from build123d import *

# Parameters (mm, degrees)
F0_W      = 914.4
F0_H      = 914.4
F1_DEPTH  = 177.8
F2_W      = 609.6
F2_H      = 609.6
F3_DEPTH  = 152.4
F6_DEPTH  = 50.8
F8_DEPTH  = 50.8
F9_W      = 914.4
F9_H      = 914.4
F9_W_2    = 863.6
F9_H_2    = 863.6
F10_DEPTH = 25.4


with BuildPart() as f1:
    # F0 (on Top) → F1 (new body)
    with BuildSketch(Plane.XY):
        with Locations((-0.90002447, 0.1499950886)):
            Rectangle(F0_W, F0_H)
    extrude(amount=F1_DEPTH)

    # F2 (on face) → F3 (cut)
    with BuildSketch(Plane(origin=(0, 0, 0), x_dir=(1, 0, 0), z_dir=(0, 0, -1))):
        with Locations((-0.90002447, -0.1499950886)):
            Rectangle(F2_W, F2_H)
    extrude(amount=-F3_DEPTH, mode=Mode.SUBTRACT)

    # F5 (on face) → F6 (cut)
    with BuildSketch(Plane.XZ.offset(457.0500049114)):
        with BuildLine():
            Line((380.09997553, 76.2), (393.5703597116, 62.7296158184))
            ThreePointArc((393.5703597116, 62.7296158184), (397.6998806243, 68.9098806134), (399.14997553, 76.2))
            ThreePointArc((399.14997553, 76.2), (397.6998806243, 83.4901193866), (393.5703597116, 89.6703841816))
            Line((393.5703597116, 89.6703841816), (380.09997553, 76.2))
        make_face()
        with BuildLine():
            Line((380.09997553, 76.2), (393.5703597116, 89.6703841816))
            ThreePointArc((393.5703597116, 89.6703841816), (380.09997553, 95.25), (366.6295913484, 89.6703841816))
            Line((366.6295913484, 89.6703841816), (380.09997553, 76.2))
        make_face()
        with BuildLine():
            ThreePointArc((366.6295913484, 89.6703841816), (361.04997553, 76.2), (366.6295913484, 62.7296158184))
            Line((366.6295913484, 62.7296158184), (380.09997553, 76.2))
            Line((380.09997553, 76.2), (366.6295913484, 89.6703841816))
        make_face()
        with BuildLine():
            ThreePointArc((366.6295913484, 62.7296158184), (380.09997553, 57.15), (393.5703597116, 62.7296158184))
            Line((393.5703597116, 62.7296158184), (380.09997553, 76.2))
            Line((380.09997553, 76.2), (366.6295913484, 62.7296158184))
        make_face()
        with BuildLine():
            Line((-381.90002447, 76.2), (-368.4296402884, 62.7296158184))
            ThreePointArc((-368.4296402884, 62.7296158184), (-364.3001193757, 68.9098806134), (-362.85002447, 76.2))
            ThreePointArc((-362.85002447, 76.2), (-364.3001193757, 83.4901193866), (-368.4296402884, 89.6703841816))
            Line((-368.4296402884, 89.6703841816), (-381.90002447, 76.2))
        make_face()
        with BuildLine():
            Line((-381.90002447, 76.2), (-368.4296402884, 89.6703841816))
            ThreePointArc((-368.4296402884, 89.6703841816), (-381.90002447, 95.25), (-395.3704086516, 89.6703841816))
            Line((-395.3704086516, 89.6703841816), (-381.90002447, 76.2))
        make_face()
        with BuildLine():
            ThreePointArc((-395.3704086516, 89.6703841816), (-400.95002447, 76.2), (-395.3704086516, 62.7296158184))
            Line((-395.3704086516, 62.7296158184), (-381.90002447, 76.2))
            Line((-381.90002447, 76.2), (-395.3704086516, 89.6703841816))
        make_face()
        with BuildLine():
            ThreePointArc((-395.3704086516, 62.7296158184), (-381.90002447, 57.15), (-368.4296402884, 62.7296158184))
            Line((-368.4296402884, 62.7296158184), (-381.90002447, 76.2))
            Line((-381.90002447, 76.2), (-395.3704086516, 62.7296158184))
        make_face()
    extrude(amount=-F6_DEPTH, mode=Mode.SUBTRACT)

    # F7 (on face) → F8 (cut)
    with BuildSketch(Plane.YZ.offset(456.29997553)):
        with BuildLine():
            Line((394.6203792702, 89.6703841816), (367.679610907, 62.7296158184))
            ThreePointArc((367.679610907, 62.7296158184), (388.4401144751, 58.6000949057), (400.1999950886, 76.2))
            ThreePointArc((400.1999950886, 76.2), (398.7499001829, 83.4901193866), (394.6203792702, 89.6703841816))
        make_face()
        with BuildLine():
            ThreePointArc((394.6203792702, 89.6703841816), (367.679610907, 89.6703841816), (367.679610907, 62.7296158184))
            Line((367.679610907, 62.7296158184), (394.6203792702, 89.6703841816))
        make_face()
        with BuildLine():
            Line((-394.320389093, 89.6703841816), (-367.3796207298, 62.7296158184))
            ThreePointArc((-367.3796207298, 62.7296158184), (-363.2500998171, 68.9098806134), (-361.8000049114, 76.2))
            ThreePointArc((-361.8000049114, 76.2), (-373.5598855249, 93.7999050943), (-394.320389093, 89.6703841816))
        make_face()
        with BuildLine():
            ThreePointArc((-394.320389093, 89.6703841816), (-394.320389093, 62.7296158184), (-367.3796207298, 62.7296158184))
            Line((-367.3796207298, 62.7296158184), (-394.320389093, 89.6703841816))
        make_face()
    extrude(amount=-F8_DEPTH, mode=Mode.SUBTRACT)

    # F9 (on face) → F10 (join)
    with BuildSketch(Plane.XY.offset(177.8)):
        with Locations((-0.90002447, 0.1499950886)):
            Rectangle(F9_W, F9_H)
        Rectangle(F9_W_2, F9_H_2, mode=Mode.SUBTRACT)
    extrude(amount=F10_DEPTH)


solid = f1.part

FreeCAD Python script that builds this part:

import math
import FreeCAD as App
import Part
import Sketcher
from FreeCAD import Vector
Q = App.Units.Quantity


def add_polygon(sketch, points):
    """Adds a closed chain of lines whose ends are joined by coincident constraints."""
    first, n = sketch.GeometryCount, len(points)
    for a, b in zip(points, points[1:] + points[:1]):
        sketch.addGeometry(Part.LineSegment(App.Vector(*a, 0), App.Vector(*b, 0)), False)
    for i in range(n):
        sketch.addConstraint(Sketcher.Constraint("Coincident", first + i, 2, first + (i + 1) % n, 1))

doc = App.newDocument("Part")
params = doc.addObject("Spreadsheet::Sheet", "Params")
for row, (alias, value) in enumerate([
    ("sketch1_width", "36 in"),
    ("pad1_length", "7 in"),
    ("sketch2_width", "24 in"),
    ("pocket1_length", "6 in"),
    ("sketch3_radius", "0.75 in"),
    ("pocket2_length", "2 in"),
    ("sketch4_radius", "0.75 in"),
    ("pocket3_length", "2 in"),
    ("sketch5_width", "36 in"),
    ("sketch5_width2", "34 in"),
    ("pad2_length", "1 in"),
], start=1):
    params.set(f"A{row}", alias)
    params.set(f"B{row}", "=" + value)
    params.setAlias(f"B{row}", alias)

body = doc.addObject("PartDesign::Body", "Body")

# Sketch on XY plane
sketch1 = doc.addObject("Sketcher::SketchObject", "Sketch")
body.addObject(sketch1)
sketch1.AttachmentSupport = (doc.XY_Plane, [""])
sketch1.MapMode = "FlatFace"
add_polygon(sketch1, [(-458.100024, 457.349995), (-458.100024, -457.050005), (456.299976, -457.050005), (456.299976, 457.349995)])  # lines 0-3
sketch1.addConstraint([
    Sketcher.Constraint("Vertical", 0),
    Sketcher.Constraint("Horizontal", 1),
    Sketcher.Constraint("Vertical", 2),
    Sketcher.Constraint("Horizontal", 3),
    Sketcher.Constraint("Equal", 3, 0),
    Sketcher.Constraint("DistanceX", 1, 1, 1, 2, Q("36 in")),
    Sketcher.Constraint("DistanceX", 0, 2, -1, 1, Q("458.100024 mm")),
    Sketcher.Constraint("DistanceY", 0, 2, -1, 1, Q("457.050005 mm")),
])
sketch1.setExpression("Constraints[9]", "Params.sketch1_width")
pad1 = doc.addObject("PartDesign::Pad", "Pad")
body.addObject(pad1)
pad1.Profile = sketch1
pad1.setExpression("Length", "Params.pad1_length")

# Sketch on XY plane
sketch2 = doc.addObject("Sketcher::SketchObject", "Sketch001")
body.addObject(sketch2)
sketch2.AttachmentSupport = (doc.XY_Plane, [""])
sketch2.MapMode = "FlatFace"
add_polygon(sketch2, [(-305.700024, -304.650005), (-305.700024, 304.949995), (303.899976, 304.949995), (303.899976, -304.650005)])  # lines 0-3
sketch2.addConstraint([
    Sketcher.Constraint("Vertical", 0),
    Sketcher.Constraint("Horizontal", 1),
    Sketcher.Constraint("Vertical", 2),
    Sketcher.Constraint("Horizontal", 3),
    Sketcher.Constraint("Equal", 3, 0),
    Sketcher.Constraint("DistanceX", 1, 1, 1, 2, Q("24 in")),
    Sketcher.Constraint("DistanceX", 0, 2, -1, 1, Q("305.700024 mm")),
    Sketcher.Constraint("DistanceY", -1, 1, 0, 2, Q("304.949995 mm")),
])
sketch2.setExpression("Constraints[9]", "Params.sketch2_width")
pocket1 = doc.addObject("PartDesign::Pocket", "Pocket")
body.addObject(pocket1)
pocket1.Profile = sketch2
pocket1.setExpression("Length", "Params.pocket1_length")
pocket1.Reversed = True

# Sketch on XZ plane
sketch3 = doc.addObject("Sketcher::SketchObject", "Sketch002")
body.addObject(sketch3)
sketch3.AttachmentSupport = (doc.XZ_Plane, [""])
sketch3.MapMode = "FlatFace"
sketch3.AttachmentOffset = App.Placement(Vector(0, 0, 457.050005), App.Rotation())
sketch3.addGeometry([
    Part.ArcOfCircle(Part.Circle(Vector(380.099976, 76.2, 0), Vector(0, 0, 1), 19.05), math.radians(-45), math.radians(0)),  # 0
    Part.ArcOfCircle(Part.Circle(Vector(380.099976, 76.2, 0), Vector(0, 0, 1), 19.05), math.radians(0), math.radians(45)),  # 1
    Part.ArcOfCircle(Part.Circle(Vector(380.099976, 76.2, 0), Vector(0, 0, 1), 19.05), math.radians(45), math.radians(135)),  # 2
    Part.ArcOfCircle(Part.Circle(Vector(380.099976, 76.2, 0), Vector(0, 0, 1), 19.05), math.radians(135), math.radians(225)),  # 3
    Part.ArcOfCircle(Part.Circle(Vector(380.099976, 76.2, 0), Vector(0, 0, 1), 19.05), math.radians(-135), math.radians(-45)),  # 4
    Part.ArcOfCircle(Part.Circle(Vector(-381.900024, 76.2, 0), Vector(0, 0, 1), 19.05), math.radians(-45), math.radians(0)),  # 5
    Part.ArcOfCircle(Part.Circle(Vector(-381.900024, 76.2, 0), Vector(0, 0, 1), 19.05), math.radians(0), math.radians(45)),  # 6
    Part.ArcOfCircle(Part.Circle(Vector(-381.900024, 76.2, 0), Vector(0, 0, 1), 19.05), math.radians(45), math.radians(135)),  # 7
    Part.ArcOfCircle(Part.Circle(Vector(-381.900024, 76.2, 0), Vector(0, 0, 1), 19.05), math.radians(135), math.radians(225)),  # 8
    Part.ArcOfCircle(Part.Circle(Vector(-381.900024, 76.2, 0), Vector(0, 0, 1), 19.05), math.radians(-135), math.radians(-45)),  # 9
], False)
sketch3.addConstraint([
    Sketcher.Constraint("Tangent", 0, 2, 1, 1),
    Sketcher.Constraint("Tangent", 1, 2, 2, 1),
    Sketcher.Constraint("Tangent", 2, 2, 3, 1),
    Sketcher.Constraint("Tangent", 3, 2, 4, 1),
    Sketcher.Constraint("Tangent", 4, 2, 0, 1),
    Sketcher.Constraint("Tangent", 5, 2, 6, 1),
    Sketcher.Constraint("Tangent", 6, 2, 7, 1),
    Sketcher.Constraint("Tangent", 7, 2, 8, 1),
    Sketcher.Constraint("Tangent", 8, 2, 9, 1),
    Sketcher.Constraint("Tangent", 9, 2, 5, 1),
    Sketcher.Constraint("Coincident", 2, 3, 0, 3),
    Sketcher.Constraint("Coincident", 7, 3, 5, 3),
    Sketcher.Constraint("Equal", 4, 5),
    Sketcher.Constraint("Horizontal", 4, 3, 5, 3),
    Sketcher.Constraint("Horizontal", 9, 3, 0, 2),
    Sketcher.Constraint("Horizontal", 1, 2, 2, 2),
    Sketcher.Constraint("Horizontal", 3, 2, 4, 2),
    Sketcher.Constraint("Horizontal", 0, 2, 5, 2),
    Sketcher.Constraint("Horizontal", 2, 2, 6, 2),
    Sketcher.Constraint("Horizontal", 6, 2, 7, 2),
    Sketcher.Constraint("Horizontal", 4, 2, 8, 2),
    Sketcher.Constraint("Horizontal", 8, 2, 9, 2),
    Sketcher.Constraint("Vertical", 2, 2, 3, 2),
    Sketcher.Constraint("Radius", 0, Q("0.75 in")),
    Sketcher.Constraint("DistanceY", -1, 1, 0, 3, Q("3 in")),
    Sketcher.Constraint("DistanceX", 5, 3, 0, 3, Q("30 in")),
    Sketcher.Constraint("DistanceX", -1, 1, 1, 2, Q("393.57036 mm")),
    Sketcher.Constraint("DistanceX", -1, 1, 2, 2, Q("366.629591 mm")),
])
sketch3.setExpression("Constraints[23]", "Params.sketch3_radius")
pocket2 = doc.addObject("PartDesign::Pocket", "Pocket001")
body.addObject(pocket2)
pocket2.Profile = sketch3
pocket2.setExpression("Length", "Params.pocket2_length")

# Sketch on YZ plane
sketch4 = doc.addObject("Sketcher::SketchObject", "Sketch003")
body.addObject(sketch4)
sketch4.AttachmentSupport = (doc.YZ_Plane, [""])
sketch4.MapMode = "FlatFace"
sketch4.AttachmentOffset = App.Placement(Vector(0, 0, 456.299976), App.Rotation())
sketch4.addGeometry([
    Part.ArcOfCircle(Part.Circle(Vector(381.149995, 76.2, 0), Vector(0, 0, 1), 19.05), math.radians(-135), math.radians(0)),  # 0
    Part.ArcOfCircle(Part.Circle(Vector(381.149995, 76.2, 0), Vector(0, 0, 1), 19.05), math.radians(0), math.radians(45)),  # 1
    Part.ArcOfCircle(Part.Circle(Vector(381.149995, 76.2, 0), Vector(0, 0, 1), 19.05), math.radians(45), math.radians(225)),  # 2
    Part.ArcOfCircle(Part.Circle(Vector(-380.850005, 76.2, 0), Vector(0, 0, 1), 19.05), math.radians(-45), math.radians(0)),  # 3
    Part.ArcOfCircle(Part.Circle(Vector(-380.850005, 76.2, 0), Vector(0, 0, 1), 19.05), math.radians(0), math.radians(135)),  # 4
    Part.ArcOfCircle(Part.Circle(Vector(-380.850005, 76.2, 0), Vector(0, 0, 1), 19.05), math.radians(135), math.radians(315)),  # 5
], False)
sketch4.addConstraint([
    Sketcher.Constraint("Tangent", 0, 2, 1, 1),
    Sketcher.Constraint("Tangent", 1, 2, 2, 1),
    Sketcher.Constraint("Tangent", 2, 2, 0, 1),
    Sketcher.Constraint("Tangent", 3, 2, 4, 1),
    Sketcher.Constraint("Tangent", 4, 2, 5, 1),
    Sketcher.Constraint("Tangent", 5, 2, 3, 1),
    Sketcher.Constraint("Equal", 2, 3),
    Sketcher.Constraint("Horizontal", 2, 3, 3, 3),
    Sketcher.Constraint("Horizontal", 5, 3, 0, 2),
    Sketcher.Constraint("Horizontal", 0, 2, 3, 2),
    Sketcher.Constraint("Horizontal", 1, 2, 4, 2),
    Sketcher.Constraint("Horizontal", 2, 2, 5, 2),
    Sketcher.Constraint("Radius", 0, Q("0.75 in")),
    Sketcher.Constraint("DistanceY", -1, 1, 0, 3, Q("3 in")),
    Sketcher.Constraint("DistanceX", 3, 3, 1, 3, Q("30 in")),
    Sketcher.Constraint("DistanceX", 4, 2, 2, 2, Q("30 in")),
    Sketcher.Constraint("DistanceX", -1, 1, 1, 2, Q("394.620379 mm")),
    Sketcher.Constraint("DistanceX", -1, 1, 2, 2, Q("367.679611 mm")),
])
sketch4.setExpression("Constraints[12]", "Params.sketch4_radius")
pocket3 = doc.addObject("PartDesign::Pocket", "Pocket002")
body.addObject(pocket3)
pocket3.Profile = sketch4
pocket3.setExpression("Length", "Params.pocket3_length")

# Sketch on XY plane
sketch5 = doc.addObject("Sketcher::SketchObject", "Sketch004")
body.addObject(sketch5)
sketch5.AttachmentSupport = (doc.XY_Plane, [""])
sketch5.MapMode = "FlatFace"
sketch5.AttachmentOffset = App.Placement(Vector(0, 0, 7 * 25.4), App.Rotation())
add_polygon(sketch5, [(-458.100024, 457.349995), (-458.100024, -457.050005), (456.299976, -457.050005), (456.299976, 457.349995)])  # lines 0-3
add_polygon(sketch5, [(431.8, -431.8), (-431.8, -431.8), (-431.8, 431.8), (431.8, 431.8)])  # lines 4-7
sketch5.addConstraint([
    Sketcher.Constraint("Vertical", 0),
    Sketcher.Constraint("Horizontal", 1),
    Sketcher.Constraint("Vertical", 2),
    Sketcher.Constraint("Horizontal", 3),
    Sketcher.Constraint("Horizontal", 4),
    Sketcher.Constraint("Vertical", 5),
    Sketcher.Constraint("Horizontal", 6),
    Sketcher.Constraint("Vertical", 7),
    Sketcher.Constraint("Symmetric", 4, 2, 6, 2, -1, 1),
    Sketcher.Constraint("Equal", 3, 0),
    Sketcher.Constraint("Equal", 6, 5),
    Sketcher.Constraint("DistanceX", 1, 1, 1, 2, Q("36 in")),
    Sketcher.Constraint("DistanceX", 4, 2, 4, 1, Q("34 in")),
    Sketcher.Constraint("DistanceX", 0, 2, -1, 1, Q("458.100024 mm")),
    Sketcher.Constraint("DistanceY", 0, 2, -1, 1, Q("457.050005 mm")),
])
sketch5.setExpression("Constraints[19]", "Params.sketch5_width")
sketch5.setExpression("Constraints[20]", "Params.sketch5_width2")
pad2 = doc.addObject("PartDesign::Pad", "Pad001")
body.addObject(pad2)
pad2.Profile = sketch5
pad2.setExpression("Length", "Params.pad2_length")

doc.recompute()
